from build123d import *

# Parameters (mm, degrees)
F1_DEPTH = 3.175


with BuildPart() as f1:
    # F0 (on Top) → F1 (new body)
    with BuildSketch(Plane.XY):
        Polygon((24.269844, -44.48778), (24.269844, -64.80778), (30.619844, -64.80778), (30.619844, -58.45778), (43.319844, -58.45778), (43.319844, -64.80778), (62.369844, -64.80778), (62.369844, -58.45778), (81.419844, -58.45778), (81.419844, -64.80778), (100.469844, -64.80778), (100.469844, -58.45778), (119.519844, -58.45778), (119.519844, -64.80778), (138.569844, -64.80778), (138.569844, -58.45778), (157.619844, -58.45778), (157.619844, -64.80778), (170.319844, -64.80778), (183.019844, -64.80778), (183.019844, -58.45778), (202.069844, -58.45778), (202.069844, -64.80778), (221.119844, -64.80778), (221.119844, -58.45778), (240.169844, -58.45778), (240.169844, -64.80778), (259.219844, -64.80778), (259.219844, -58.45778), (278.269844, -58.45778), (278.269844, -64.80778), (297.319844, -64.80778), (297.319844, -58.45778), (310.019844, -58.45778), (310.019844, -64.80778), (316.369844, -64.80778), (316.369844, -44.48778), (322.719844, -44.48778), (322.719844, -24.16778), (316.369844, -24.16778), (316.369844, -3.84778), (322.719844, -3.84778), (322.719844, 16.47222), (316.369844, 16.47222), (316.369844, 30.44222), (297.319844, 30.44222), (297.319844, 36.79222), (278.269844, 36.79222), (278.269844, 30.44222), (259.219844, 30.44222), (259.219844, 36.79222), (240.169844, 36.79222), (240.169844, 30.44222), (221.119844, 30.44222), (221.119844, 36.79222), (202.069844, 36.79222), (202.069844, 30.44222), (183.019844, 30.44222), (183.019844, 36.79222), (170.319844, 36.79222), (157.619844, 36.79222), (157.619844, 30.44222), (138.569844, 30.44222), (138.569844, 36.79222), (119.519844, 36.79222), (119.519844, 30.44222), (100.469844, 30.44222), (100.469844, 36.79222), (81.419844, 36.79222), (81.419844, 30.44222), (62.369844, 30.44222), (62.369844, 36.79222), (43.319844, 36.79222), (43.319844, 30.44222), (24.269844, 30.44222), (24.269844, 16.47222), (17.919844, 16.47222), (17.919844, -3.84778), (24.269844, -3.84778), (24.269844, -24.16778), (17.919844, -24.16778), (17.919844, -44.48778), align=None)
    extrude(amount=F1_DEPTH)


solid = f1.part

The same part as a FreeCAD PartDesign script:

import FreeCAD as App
import Part
import Sketcher
from FreeCAD import Vector
Q = App.Units.Quantity

doc = App.newDocument("Part")
body = doc.addObject("PartDesign::Body", "Body")

sketch1 = doc.addObject("Sketcher::SketchObject", "Sketch")
body.addObject(sketch1)
sketch1.AttachmentSupport = (doc.XY_Plane, [""])
sketch1.MapMode = "FlatFace"
sketch1.addGeometry([
    Part.LineSegment(Vector(24, -44, 0), Vector(24, -65, 0)),
    Part.LineSegment(Vector(24, -65, 0), Vector(31, -65, 0)),
    Part.LineSegment(Vector(31, -65, 0), Vector(31, -58, 0)),
    Part.LineSegment(Vector(31, -58, 0), Vector(43, -58, 0)),
    Part.LineSegment(Vector(43, -58, 0), Vector(43, -65, 0)),
    Part.LineSegment(Vector(43, -65, 0), Vector(62, -65, 0)),
    Part.LineSegment(Vector(62, -65, 0), Vector(62, -58, 0)),
    Part.LineSegment(Vector(62, -58, 0), Vector(81, -58, 0)),
    Part.LineSegment(Vector(81, -58, 0), Vector(81, -65, 0)),
    Part.LineSegment(Vector(81, -65, 0), Vector(100, -65, 0)),
    Part.LineSegment(Vector(100, -65, 0), Vector(100, -58, 0)),
    Part.LineSegment(Vector(100, -58, 0), Vector(120, -58, 0)),
    Part.LineSegment(Vector(120, -58, 0), Vector(120, -65, 0)),
    Part.LineSegment(Vector(120, -65, 0), Vector(139, -65, 0)),
    Part.LineSegment(Vector(139, -65, 0), Vector(139, -58, 0)),
    Part.LineSegment(Vector(139, -58, 0), Vector(158, -58, 0)),
    Part.LineSegment(Vector(158, -58, 0), Vector(158, -65, 0)),
    Part.LineSegment(Vector(158, -65, 0), Vector(183, -65, 0)),
    Part.LineSegment(Vector(183, -65, 0), Vector(183, -58, 0)),
    Part.LineSegment(Vector(183, -58, 0), Vector(202, -58, 0)),
    Part.LineSegment(Vector(202, -58, 0), Vector(202, -65, 0)),
    Part.LineSegment(Vector(202, -65, 0), Vector(221, -65, 0)),
    Part.LineSegment(Vector(221, -65, 0), Vector(221, -58, 0)),
    Part.LineSegment(Vector(221, -58, 0), Vector(240, -58, 0)),
    Part.LineSegment(Vector(240, -58, 0), Vector(240, -65, 0)),
    Part.LineSegment(Vector(240, -65, 0), Vector(259, -65, 0)),
    Part.LineSegment(Vector(259, -65, 0), Vector(259, -58, 0)),
    Part.LineSegment(Vector(259, -58, 0), Vector(278, -58, 0)),
    Part.LineSegment(Vector(278, -58, 0), Vector(278, -65, 0)),
    Part.LineSegment(Vector(278, -65, 0), Vector(297, -65, 0)),
    Part.LineSegment(Vector(297, -65, 0), Vector(297, -58, 0)),
    Part.LineSegment(Vector(297, -58, 0), Vector(310, -58, 0)),
    Part.LineSegment(Vector(310, -58, 0), Vector(310, -65, 0)),
    Part.LineSegment(Vector(310, -65, 0), Vector(316, -65, 0)),
    Part.LineSegment(Vector(316, -65, 0), Vector(316, -44, 0)),
    Part.LineSegment(Vector(316, -44, 0), Vector(323, -44, 0)),
    Part.LineSegment(Vector(323, -44, 0), Vector(323, -24, 0)),
    Part.LineSegment(Vector(323, -24, 0), Vector(316, -24, 0)),
    Part.LineSegment(Vector(316, -24, 0), Vector(316, -4, 0)),
    Part.LineSegment(Vector(316, -4, 0), Vector(323, -4, 0)),
    Part.LineSegment(Vector(323, -4, 0), Vector(323, 16, 0)),
    Part.LineSegment(Vector(323, 16, 0), Vector(316, 16, 0)),
    Part.LineSegment(Vector(316, 16, 0), Vector(316, 30, 0)),
    Part.LineSegment(Vector(316, 30, 0), Vector(297, 30, 0)),
    Part.LineSegment(Vector(297, 30, 0), Vector(297, 37, 0)),
    Part.LineSegment(Vector(297, 37, 0), Vector(278, 37, 0)),
    Part.LineSegment(Vector(278, 37, 0), Vector(278, 30, 0)),
    Part.LineSegment(Vector(278, 30, 0), Vector(259, 30, 0)),
    Part.LineSegment(Vector(259, 30, 0), Vector(259, 37, 0)),
    Part.LineSegment(Vector(259, 37, 0), Vector(240, 37, 0)),
    Part.LineSegment(Vector(240, 37, 0), Vector(240, 30, 0)),
    Part.LineSegment(Vector(240, 30, 0), Vector(221, 30, 0)),
    Part.LineSegment(Vector(221, 30, 0), Vector(221, 37, 0)),
    Part.LineSegment(Vector(221, 37, 0), Vector(202, 37, 0)),
    Part.LineSegment(Vector(202, 37, 0), Vector(202, 30, 0)),
    Part.LineSegment(Vector(202, 30, 0), Vector(183, 30, 0)),
    Part.LineSegment(Vector(183, 30, 0), Vector(183, 37, 0)),
    Part.LineSegment(Vector(183, 37, 0), Vector(158, 37, 0)),
    Part.LineSegment(Vector(158, 37, 0), Vector(158, 30, 0)),
    Part.LineSegment(Vector(158, 30, 0), Vector(139, 30, 0)),
    Part.LineSegment(Vector(139, 30, 0), Vector(139, 37, 0)),
    Part.LineSegment(Vector(139, 37, 0), Vector(120, 37, 0)),
    Part.LineSegment(Vector(120, 37, 0), Vector(120, 30, 0)),
    Part.LineSegment(Vector(120, 30, 0), Vector(100, 30, 0)),
    Part.LineSegment(Vector(100, 30, 0), Vector(100, 37, 0)),
    Part.LineSegment(Vector(100, 37, 0), Vector(81, 37, 0)),
    Part.LineSegment(Vector(81, 37, 0), Vector(81, 30, 0)),
    Part.LineSegment(Vector(81, 30, 0), Vector(62, 30, 0)),
    Part.LineSegment(Vector(62, 30, 0), Vector(62, 37, 0)),
    Part.LineSegment(Vector(62, 37, 0), Vector(43, 37, 0)),
    Part.LineSegment(Vector(43, 37, 0), Vector(43, 30, 0)),
    Part.LineSegment(Vector(43, 30, 0), Vector(24, 30, 0)),
    Part.LineSegment(Vector(24, 30, 0), Vector(24, 16, 0)),
    Part.LineSegment(Vector(24, 16, 0), Vector(18, 16, 0)),
    Part.LineSegment(Vector(18, 16, 0), Vector(18, -4, 0)),
    Part.LineSegment(Vector(18, -4, 0), Vector(24, -4, 0)),
    Part.LineSegment(Vector(24, -4, 0), Vector(24, -24, 0)),
    Part.LineSegment(Vector(24, -24, 0), Vector(18, -24, 0)),
    Part.LineSegment(Vector(18, -24, 0), Vector(18, -44, 0)),
    Part.LineSegment(Vector(18, -44, 0), Vector(24, -44, 0)),
], False)
sketch1.addConstraint([
    Sketcher.Constraint("Coincident", 0, 2, 1, 1),
    Sketcher.Constraint("Coincident", 1, 2, 2, 1),
    Sketcher.Constraint("Coincident", 2, 2, 3, 1),
    Sketcher.Constraint("Coincident", 3, 2, 4, 1),
    Sketcher.Constraint("Coincident", 4, 2, 5, 1),
    Sketcher.Constraint("Coincident", 5, 2, 6, 1),
    Sketcher.Constraint("Coincident", 6, 2, 7, 1),
    Sketcher.Constraint("Coincident", 7, 2, 8, 1),
    Sketcher.Constraint("Coincident", 8, 2, 9, 1),
    Sketcher.Constraint("Coincident", 9, 2, 10, 1),
    Sketcher.Constraint("Coincident", 10, 2, 11, 1),
    Sketcher.Constraint("Coincident", 11, 2, 12, 1),
    Sketcher.Constraint("Coincident", 12, 2, 13, 1),
    Sketcher.Constraint("Coincident", 13, 2, 14, 1),
    Sketcher.Constraint("Coincident", 14, 2, 15, 1),
    Sketcher.Constraint("Coincident", 15, 2, 16, 1),
    Sketcher.Constraint("Coincident", 16, 2, 17, 1),
    Sketcher.Constraint("Coincident", 17, 2, 18, 1),
    Sketcher.Constraint("Coincident", 18, 2, 19, 1),
    Sketcher.Constraint("Coincident", 19, 2, 20, 1),
    Sketcher.Constraint("Coincident", 20, 2, 21, 1),
    Sketcher.Constraint("Coincident", 21, 2, 22, 1),
    Sketcher.Constraint("Coincident", 22, 2, 23, 1),
    Sketcher.Constraint("Coincident", 23, 2, 24, 1),
    Sketcher.Constraint("Coincident", 24, 2, 25, 1),
    Sketcher.Constraint("Coincident", 25, 2, 26, 1),
    Sketcher.Constraint("Coincident", 26, 2, 27, 1),
    Sketcher.Constraint("Coincident", 27, 2, 28, 1),
    Sketcher.Constraint("Coincident", 28, 2, 29, 1),
    Sketcher.Constraint("Coincident", 29, 2, 30, 1),
    Sketcher.Constraint("Coincident", 30, 2, 31, 1),
    Sketcher.Constraint("Coincident", 31, 2, 32, 1),
    Sketcher.Constraint("Coincident", 32, 2, 33, 1),
    Sketcher.Constraint("Coincident", 33, 2, 34, 1),
    Sketcher.Constraint("Coincident", 34, 2, 35, 1),
    Sketcher.Constraint("Coincident", 35, 2, 36, 1),
    Sketcher.Constraint("Coincident", 36, 2, 37, 1),
    Sketcher.Constraint("Coincident", 37, 2, 38, 1),
    Sketcher.Constraint("Coincident", 38, 2, 39, 1),
    Sketcher.Constraint("Coincident", 39, 2, 40, 1),
    Sketcher.Constraint("Coincident", 40, 2, 41, 1),
    Sketcher.Constraint("Coincident", 41, 2, 42, 1),
    Sketcher.Constraint("Coincident", 42, 2, 43, 1),
    Sketcher.Constraint("Coincident", 43, 2, 44, 1),
    Sketcher.Constraint("Coincident", 44, 2, 45, 1),
    Sketcher.Constraint("Coincident", 45, 2, 46, 1),
    Sketcher.Constraint("Coincident", 46, 2, 47, 1),
    Sketcher.Constraint("Coincident", 47, 2, 48, 1),
    Sketcher.Constraint("Coincident", 48, 2, 49, 1),
    Sketcher.Constraint("Coincident", 49, 2, 50, 1),
    Sketcher.Constraint("Coincident", 50, 2, 51, 1),
    Sketcher.Constraint("Coincident", 51, 2, 52, 1),
    Sketcher.Constraint("Coincident", 52, 2, 53, 1),
    Sketcher.Constraint("Coincident", 53, 2, 54, 1),
    Sketcher.Constraint("Coincident", 54, 2, 55, 1),
    Sketcher.Constraint("Coincident", 55, 2, 56, 1),
    Sketcher.Constraint("Coincident", 56, 2, 57, 1),
    Sketcher.Constraint("Coincident", 57, 2, 58, 1),
    Sketcher.Constraint("Coincident", 58, 2, 59, 1),
    Sketcher.Constraint("Coincident", 59, 2, 60, 1),
    Sketcher.Constraint("Coincident", 60, 2, 61, 1),
    Sketcher.Constraint("Coincident", 61, 2, 62, 1),
    Sketcher.Constraint("Coincident", 62, 2, 63, 1),
    Sketcher.Constraint("Coincident", 63, 2, 64, 1),
    Sketcher.Constraint("Coincident", 64, 2, 65, 1),
    Sketcher.Constraint("Coincident", 65, 2, 66, 1),
    Sketcher.Constraint("Coincident", 66, 2, 67, 1),
    Sketcher.Constraint("Coincident", 67, 2, 68, 1),
    Sketcher.Constraint("Coincident", 68, 2, 69, 1),
    Sketcher.Constraint("Coincident", 69, 2, 70, 1),
    Sketcher.Constraint("Coincident", 70, 2, 71, 1),
    Sketcher.Constraint("Coincident", 71, 2, 72, 1),
    Sketcher.Constraint("Coincident", 72, 2, 73, 1),
    Sketcher.Constraint("Coincident", 73, 2, 74, 1),
    Sketcher.Constraint("Coincident", 74, 2, 75, 1),
    Sketcher.Constraint("Coincident", 75, 2, 76, 1),
    Sketcher.Constraint("Coincident", 76, 2, 77, 1),
    Sketcher.Constraint("Coincident", 77, 2, 78, 1),
    Sketcher.Constraint("Coincident", 78, 2, 79, 1),
    Sketcher.Constraint("Coincident", 79, 2, 0, 1),
    Sketcher.Constraint("Vertical", 0),
    Sketcher.Constraint("Horizontal", 1),
    Sketcher.Constraint("Vertical", 2),
    Sketcher.Constraint("Horizontal", 3),
    Sketcher.Constraint("Vertical", 4),
    Sketcher.Constraint("Horizontal", 5),
    Sketcher.Constraint("Vertical", 6),
    Sketcher.Constraint("Horizontal", 7),
    Sketcher.Constraint("Vertical", 8),
    Sketcher.Constraint("Horizontal", 9),
    Sketcher.Constraint("Vertical", 10),
    Sketcher.Constraint("Horizontal", 11),
    Sketcher.Constraint("Vertical", 12),
    Sketcher.Constraint("Horizontal", 13),
    Sketcher.Constraint("Vertical", 14),
    Sketcher.Constraint("Horizontal", 15),
    Sketcher.Constraint("Vertical", 16),
    Sketcher.Constraint("Horizontal", 17),
    Sketcher.Constraint("Vertical", 18),
    Sketcher.Constraint("Horizontal", 19),
    Sketcher.Constraint("Vertical", 20),
    Sketcher.Constraint("Horizontal", 21),
    Sketcher.Constraint("Vertical", 22),
    Sketcher.Constraint("Horizontal", 23),
    Sketcher.Constraint("Vertical", 24),
    Sketcher.Constraint("Horizontal", 25),
    Sketcher.Constraint("Vertical", 26),
    Sketcher.Constraint("Horizontal", 27),
    Sketcher.Constraint("Vertical", 28),
    Sketcher.Constraint("Horizontal", 29),
    Sketcher.Constraint("Vertical", 30),
    Sketcher.Constraint("Horizontal", 31),
    Sketcher.Constraint("Vertical", 32),
    Sketcher.Constraint("Horizontal", 33),
    Sketcher.Constraint("Vertical", 34),
    Sketcher.Constraint("Horizontal", 35),
    Sketcher.Constraint("Vertical", 36),
    Sketcher.Constraint("Horizontal", 37),
    Sketcher.Constraint("Vertical", 38),
    Sketcher.Constraint("Horizontal", 39),
    Sketcher.Constraint("Vertical", 40),
    Sketcher.Constraint("Horizontal", 41),
    Sketcher.Constraint("Vertical", 42),
    Sketcher.Constraint("Horizontal", 43),
    Sketcher.Constraint("Vertical", 44),
    Sketcher.Constraint("Horizontal", 45),
    Sketcher.Constraint("Vertical", 46),
    Sketcher.Constraint("Horizontal", 47),
    Sketcher.Constraint("Vertical", 48),
    Sketcher.Constraint("Horizontal", 49),
    Sketcher.Constraint("Vertical", 50),
    Sketcher.Constraint("Horizontal", 51),
    Sketcher.Constraint("Vertical", 52),
    Sketcher.Constraint("Horizontal", 53),
    Sketcher.Constraint("Vertical", 54),
    Sketcher.Constraint("Horizontal", 55),
    Sketcher.Constraint("Vertical", 56),
    Sketcher.Constraint("Horizontal", 57),
    Sketcher.Constraint("Vertical", 58),
    Sketcher.Constraint("Horizontal", 59),
    Sketcher.Constraint("Vertical", 60),
    Sketcher.Constraint("Horizontal", 61),
    Sketcher.Constraint("Vertical", 62),
    Sketcher.Constraint("Horizontal", 63),
    Sketcher.Constraint("Vertical", 64),
    Sketcher.Constraint("Horizontal", 65),
    Sketcher.Constraint("Vertical", 66),
    Sketcher.Constraint("Horizontal", 67),
    Sketcher.Constraint("Vertical", 68),
    Sketcher.Constraint("Horizontal", 69),
    Sketcher.Constraint("Vertical", 70),
    Sketcher.Constraint("Horizontal", 71),
    Sketcher.Constraint("Vertical", 72),
    Sketcher.Constraint("Horizontal", 73),
    Sketcher.Constraint("Vertical", 74),
    Sketcher.Constraint("Horizontal", 75),
    Sketcher.Constraint("Vertical", 76),
    Sketcher.Constraint("Horizontal", 77),
    Sketcher.Constraint("Vertical", 78),
    Sketcher.Constraint("Horizontal", 79),
    Sketcher.Constraint("Horizontal", 1, 2, 4, 2),
    Sketcher.Constraint("Horizontal", 3, 2, 6, 2),
    Sketcher.Constraint("Horizontal", 5, 2, 8, 2),
    Sketcher.Constraint("Horizontal", 7, 2, 10, 2),
    Sketcher.Constraint("Horizontal", 9, 2, 12, 2),
    Sketcher.Constraint("Horizontal", 11, 2, 14, 2),
    Sketcher.Constraint("Horizontal", 13, 2, 16, 2),
    Sketcher.Constraint("Horizontal", 15, 2, 18, 2),
    Sketcher.Constraint("Horizontal", 17, 2, 20, 2),
    Sketcher.Constraint("Horizontal", 19, 2, 22, 2),
    Sketcher.Constraint("Horizontal", 21, 2, 24, 2),
    Sketcher.Constraint("Horizontal", 23, 2, 26, 2),
    Sketcher.Constraint("Horizontal", 25, 2, 28, 2),
    Sketcher.Constraint("Horizontal", 27, 2, 30, 2),
    Sketcher.Constraint("Horizontal", 29, 2, 32, 2),
    Sketcher.Constraint("Horizontal", 43, 2, 46, 2),
    Sketcher.Constraint("Horizontal", 45, 2, 48, 2),
    Sketcher.Constraint("Horizontal", 47, 2, 50, 2),
    Sketcher.Constraint("Horizontal", 49, 2, 52, 2),
    Sketcher.Constraint("Horizontal", 51, 2, 54, 2),
    Sketcher.Constraint("Horizontal", 53, 2, 56, 2),
    Sketcher.Constraint("Horizontal", 55, 2, 58, 2),
    Sketcher.Constraint("Horizontal", 57, 2, 60, 2),
    Sketcher.Constraint("Horizontal", 59, 2, 62, 2),
    Sketcher.Constraint("Horizontal", 61, 2, 64, 2),
    Sketcher.Constraint("Horizontal", 63, 2, 66, 2),
    Sketcher.Constraint("Horizontal", 65, 2, 68, 2),
    Sketcher.Constraint("Horizontal", 67, 2, 70, 2),
    Sketcher.Constraint("Horizontal", 41, 2, 72, 2),
    Sketcher.Constraint("Horizontal", 39, 2, 74, 2),
    Sketcher.Constraint("Horizontal", 37, 2, 76, 2),
    Sketcher.Constraint("Horizontal", 35, 2, 78, 2),
    Sketcher.Constraint("Vertical", 34, 2, 37, 2),
    Sketcher.Constraint("Vertical", 36, 2, 39, 2),
    Sketcher.Constraint("Vertical", 38, 2, 41, 2),
    Sketcher.Constraint("Vertical", 30, 2, 43, 2),
    Sketcher.Constraint("Vertical", 28, 2, 45, 2),
    Sketcher.Constraint("Vertical", 26, 2, 47, 2),
    Sketcher.Constraint("Vertical", 24, 2, 49, 2),
    Sketcher.Constraint("Vertical", 22, 2, 51, 2),
    Sketcher.Constraint("Vertical", 20, 2, 53, 2),
    Sketcher.Constraint("Vertical", 18, 2, 55, 2),
    Sketcher.Constraint("Vertical", 16, 2, 57, 2),
    Sketcher.Constraint("Vertical", 14, 2, 59, 2),
    Sketcher.Constraint("Vertical", 12, 2, 61, 2),
    Sketcher.Constraint("Vertical", 10, 2, 63, 2),
    Sketcher.Constraint("Vertical", 8, 2, 65, 2),
    Sketcher.Constraint("Vertical", 6, 2, 67, 2),
    Sketcher.Constraint("Vertical", 4, 2, 69, 2),
    Sketcher.Constraint("Vertical", 0, 2, 71, 2),
    Sketcher.Constraint("Vertical", 72, 2, 75, 2),
    Sketcher.Constraint("Vertical", 74, 2, 77, 2),
    Sketcher.Constraint("Equal", 5, 7),
    Sketcher.Constraint("Equal", 7, 9),
    Sketcher.Constraint("Equal", 9, 11),
    Sketcher.Constraint("Equal", 11, 13),
    Sketcher.Constraint("Equal", 13, 15),
    Sketcher.Constraint("Equal", 15, 19),
    Sketcher.Constraint("Equal", 19, 21),
    Sketcher.Constraint("Equal", 21, 23),
    Sketcher.Constraint("Equal", 23, 25),
    Sketcher.Constraint("Equal", 25, 27),
    Sketcher.Constraint("Equal", 27, 29),
    Sketcher.Constraint("Equal", 3, 31),
    Sketcher.Constraint("Equal", 1, 33),
    Sketcher.Constraint("Equal", 33, 35),
    Sketcher.Constraint("Equal", 29, 43),
    Sketcher.Constraint("Equal", 41, 73),
    Sketcher.Constraint("Equal", 79, 2),
    Sketcher.Constraint("Equal", 34, 36),
    Sketcher.Constraint("Equal", 36, 38),
    Sketcher.Constraint("Equal", 38, 40),
    Sketcher.Constraint("Equal", 32, 44),
    Sketcher.Constraint("DistanceX", 17, 1, 17, 2, Q("1 in")),
    Sketcher.Constraint("DistanceX", 3, 1, 3, 2, Q("0.5 in")),
    Sketcher.Constraint("DistanceY", 0, 2, 0, 1, Q("0.8 in")),
    Sketcher.Constraint("DistanceX", 1, 1, 1, 2, Q("0.25 in")),
    Sketcher.Constraint("DistanceY", 42, 1, 42, 2, Q("0.55 in")),
    Sketcher.Constraint("DistanceY", 0, 2, -1, 1, Q("64.80778 mm")),
    Sketcher.Constraint("DistanceX", -1, 1, 0, 2, Q("24.269844 mm")),
])
pad1 = doc.addObject("PartDesign::Pad", "Pad")
body.addObject(pad1)
pad1.Profile = sketch1
pad1.Length = Q("0.125 in")

doc.recompute()
